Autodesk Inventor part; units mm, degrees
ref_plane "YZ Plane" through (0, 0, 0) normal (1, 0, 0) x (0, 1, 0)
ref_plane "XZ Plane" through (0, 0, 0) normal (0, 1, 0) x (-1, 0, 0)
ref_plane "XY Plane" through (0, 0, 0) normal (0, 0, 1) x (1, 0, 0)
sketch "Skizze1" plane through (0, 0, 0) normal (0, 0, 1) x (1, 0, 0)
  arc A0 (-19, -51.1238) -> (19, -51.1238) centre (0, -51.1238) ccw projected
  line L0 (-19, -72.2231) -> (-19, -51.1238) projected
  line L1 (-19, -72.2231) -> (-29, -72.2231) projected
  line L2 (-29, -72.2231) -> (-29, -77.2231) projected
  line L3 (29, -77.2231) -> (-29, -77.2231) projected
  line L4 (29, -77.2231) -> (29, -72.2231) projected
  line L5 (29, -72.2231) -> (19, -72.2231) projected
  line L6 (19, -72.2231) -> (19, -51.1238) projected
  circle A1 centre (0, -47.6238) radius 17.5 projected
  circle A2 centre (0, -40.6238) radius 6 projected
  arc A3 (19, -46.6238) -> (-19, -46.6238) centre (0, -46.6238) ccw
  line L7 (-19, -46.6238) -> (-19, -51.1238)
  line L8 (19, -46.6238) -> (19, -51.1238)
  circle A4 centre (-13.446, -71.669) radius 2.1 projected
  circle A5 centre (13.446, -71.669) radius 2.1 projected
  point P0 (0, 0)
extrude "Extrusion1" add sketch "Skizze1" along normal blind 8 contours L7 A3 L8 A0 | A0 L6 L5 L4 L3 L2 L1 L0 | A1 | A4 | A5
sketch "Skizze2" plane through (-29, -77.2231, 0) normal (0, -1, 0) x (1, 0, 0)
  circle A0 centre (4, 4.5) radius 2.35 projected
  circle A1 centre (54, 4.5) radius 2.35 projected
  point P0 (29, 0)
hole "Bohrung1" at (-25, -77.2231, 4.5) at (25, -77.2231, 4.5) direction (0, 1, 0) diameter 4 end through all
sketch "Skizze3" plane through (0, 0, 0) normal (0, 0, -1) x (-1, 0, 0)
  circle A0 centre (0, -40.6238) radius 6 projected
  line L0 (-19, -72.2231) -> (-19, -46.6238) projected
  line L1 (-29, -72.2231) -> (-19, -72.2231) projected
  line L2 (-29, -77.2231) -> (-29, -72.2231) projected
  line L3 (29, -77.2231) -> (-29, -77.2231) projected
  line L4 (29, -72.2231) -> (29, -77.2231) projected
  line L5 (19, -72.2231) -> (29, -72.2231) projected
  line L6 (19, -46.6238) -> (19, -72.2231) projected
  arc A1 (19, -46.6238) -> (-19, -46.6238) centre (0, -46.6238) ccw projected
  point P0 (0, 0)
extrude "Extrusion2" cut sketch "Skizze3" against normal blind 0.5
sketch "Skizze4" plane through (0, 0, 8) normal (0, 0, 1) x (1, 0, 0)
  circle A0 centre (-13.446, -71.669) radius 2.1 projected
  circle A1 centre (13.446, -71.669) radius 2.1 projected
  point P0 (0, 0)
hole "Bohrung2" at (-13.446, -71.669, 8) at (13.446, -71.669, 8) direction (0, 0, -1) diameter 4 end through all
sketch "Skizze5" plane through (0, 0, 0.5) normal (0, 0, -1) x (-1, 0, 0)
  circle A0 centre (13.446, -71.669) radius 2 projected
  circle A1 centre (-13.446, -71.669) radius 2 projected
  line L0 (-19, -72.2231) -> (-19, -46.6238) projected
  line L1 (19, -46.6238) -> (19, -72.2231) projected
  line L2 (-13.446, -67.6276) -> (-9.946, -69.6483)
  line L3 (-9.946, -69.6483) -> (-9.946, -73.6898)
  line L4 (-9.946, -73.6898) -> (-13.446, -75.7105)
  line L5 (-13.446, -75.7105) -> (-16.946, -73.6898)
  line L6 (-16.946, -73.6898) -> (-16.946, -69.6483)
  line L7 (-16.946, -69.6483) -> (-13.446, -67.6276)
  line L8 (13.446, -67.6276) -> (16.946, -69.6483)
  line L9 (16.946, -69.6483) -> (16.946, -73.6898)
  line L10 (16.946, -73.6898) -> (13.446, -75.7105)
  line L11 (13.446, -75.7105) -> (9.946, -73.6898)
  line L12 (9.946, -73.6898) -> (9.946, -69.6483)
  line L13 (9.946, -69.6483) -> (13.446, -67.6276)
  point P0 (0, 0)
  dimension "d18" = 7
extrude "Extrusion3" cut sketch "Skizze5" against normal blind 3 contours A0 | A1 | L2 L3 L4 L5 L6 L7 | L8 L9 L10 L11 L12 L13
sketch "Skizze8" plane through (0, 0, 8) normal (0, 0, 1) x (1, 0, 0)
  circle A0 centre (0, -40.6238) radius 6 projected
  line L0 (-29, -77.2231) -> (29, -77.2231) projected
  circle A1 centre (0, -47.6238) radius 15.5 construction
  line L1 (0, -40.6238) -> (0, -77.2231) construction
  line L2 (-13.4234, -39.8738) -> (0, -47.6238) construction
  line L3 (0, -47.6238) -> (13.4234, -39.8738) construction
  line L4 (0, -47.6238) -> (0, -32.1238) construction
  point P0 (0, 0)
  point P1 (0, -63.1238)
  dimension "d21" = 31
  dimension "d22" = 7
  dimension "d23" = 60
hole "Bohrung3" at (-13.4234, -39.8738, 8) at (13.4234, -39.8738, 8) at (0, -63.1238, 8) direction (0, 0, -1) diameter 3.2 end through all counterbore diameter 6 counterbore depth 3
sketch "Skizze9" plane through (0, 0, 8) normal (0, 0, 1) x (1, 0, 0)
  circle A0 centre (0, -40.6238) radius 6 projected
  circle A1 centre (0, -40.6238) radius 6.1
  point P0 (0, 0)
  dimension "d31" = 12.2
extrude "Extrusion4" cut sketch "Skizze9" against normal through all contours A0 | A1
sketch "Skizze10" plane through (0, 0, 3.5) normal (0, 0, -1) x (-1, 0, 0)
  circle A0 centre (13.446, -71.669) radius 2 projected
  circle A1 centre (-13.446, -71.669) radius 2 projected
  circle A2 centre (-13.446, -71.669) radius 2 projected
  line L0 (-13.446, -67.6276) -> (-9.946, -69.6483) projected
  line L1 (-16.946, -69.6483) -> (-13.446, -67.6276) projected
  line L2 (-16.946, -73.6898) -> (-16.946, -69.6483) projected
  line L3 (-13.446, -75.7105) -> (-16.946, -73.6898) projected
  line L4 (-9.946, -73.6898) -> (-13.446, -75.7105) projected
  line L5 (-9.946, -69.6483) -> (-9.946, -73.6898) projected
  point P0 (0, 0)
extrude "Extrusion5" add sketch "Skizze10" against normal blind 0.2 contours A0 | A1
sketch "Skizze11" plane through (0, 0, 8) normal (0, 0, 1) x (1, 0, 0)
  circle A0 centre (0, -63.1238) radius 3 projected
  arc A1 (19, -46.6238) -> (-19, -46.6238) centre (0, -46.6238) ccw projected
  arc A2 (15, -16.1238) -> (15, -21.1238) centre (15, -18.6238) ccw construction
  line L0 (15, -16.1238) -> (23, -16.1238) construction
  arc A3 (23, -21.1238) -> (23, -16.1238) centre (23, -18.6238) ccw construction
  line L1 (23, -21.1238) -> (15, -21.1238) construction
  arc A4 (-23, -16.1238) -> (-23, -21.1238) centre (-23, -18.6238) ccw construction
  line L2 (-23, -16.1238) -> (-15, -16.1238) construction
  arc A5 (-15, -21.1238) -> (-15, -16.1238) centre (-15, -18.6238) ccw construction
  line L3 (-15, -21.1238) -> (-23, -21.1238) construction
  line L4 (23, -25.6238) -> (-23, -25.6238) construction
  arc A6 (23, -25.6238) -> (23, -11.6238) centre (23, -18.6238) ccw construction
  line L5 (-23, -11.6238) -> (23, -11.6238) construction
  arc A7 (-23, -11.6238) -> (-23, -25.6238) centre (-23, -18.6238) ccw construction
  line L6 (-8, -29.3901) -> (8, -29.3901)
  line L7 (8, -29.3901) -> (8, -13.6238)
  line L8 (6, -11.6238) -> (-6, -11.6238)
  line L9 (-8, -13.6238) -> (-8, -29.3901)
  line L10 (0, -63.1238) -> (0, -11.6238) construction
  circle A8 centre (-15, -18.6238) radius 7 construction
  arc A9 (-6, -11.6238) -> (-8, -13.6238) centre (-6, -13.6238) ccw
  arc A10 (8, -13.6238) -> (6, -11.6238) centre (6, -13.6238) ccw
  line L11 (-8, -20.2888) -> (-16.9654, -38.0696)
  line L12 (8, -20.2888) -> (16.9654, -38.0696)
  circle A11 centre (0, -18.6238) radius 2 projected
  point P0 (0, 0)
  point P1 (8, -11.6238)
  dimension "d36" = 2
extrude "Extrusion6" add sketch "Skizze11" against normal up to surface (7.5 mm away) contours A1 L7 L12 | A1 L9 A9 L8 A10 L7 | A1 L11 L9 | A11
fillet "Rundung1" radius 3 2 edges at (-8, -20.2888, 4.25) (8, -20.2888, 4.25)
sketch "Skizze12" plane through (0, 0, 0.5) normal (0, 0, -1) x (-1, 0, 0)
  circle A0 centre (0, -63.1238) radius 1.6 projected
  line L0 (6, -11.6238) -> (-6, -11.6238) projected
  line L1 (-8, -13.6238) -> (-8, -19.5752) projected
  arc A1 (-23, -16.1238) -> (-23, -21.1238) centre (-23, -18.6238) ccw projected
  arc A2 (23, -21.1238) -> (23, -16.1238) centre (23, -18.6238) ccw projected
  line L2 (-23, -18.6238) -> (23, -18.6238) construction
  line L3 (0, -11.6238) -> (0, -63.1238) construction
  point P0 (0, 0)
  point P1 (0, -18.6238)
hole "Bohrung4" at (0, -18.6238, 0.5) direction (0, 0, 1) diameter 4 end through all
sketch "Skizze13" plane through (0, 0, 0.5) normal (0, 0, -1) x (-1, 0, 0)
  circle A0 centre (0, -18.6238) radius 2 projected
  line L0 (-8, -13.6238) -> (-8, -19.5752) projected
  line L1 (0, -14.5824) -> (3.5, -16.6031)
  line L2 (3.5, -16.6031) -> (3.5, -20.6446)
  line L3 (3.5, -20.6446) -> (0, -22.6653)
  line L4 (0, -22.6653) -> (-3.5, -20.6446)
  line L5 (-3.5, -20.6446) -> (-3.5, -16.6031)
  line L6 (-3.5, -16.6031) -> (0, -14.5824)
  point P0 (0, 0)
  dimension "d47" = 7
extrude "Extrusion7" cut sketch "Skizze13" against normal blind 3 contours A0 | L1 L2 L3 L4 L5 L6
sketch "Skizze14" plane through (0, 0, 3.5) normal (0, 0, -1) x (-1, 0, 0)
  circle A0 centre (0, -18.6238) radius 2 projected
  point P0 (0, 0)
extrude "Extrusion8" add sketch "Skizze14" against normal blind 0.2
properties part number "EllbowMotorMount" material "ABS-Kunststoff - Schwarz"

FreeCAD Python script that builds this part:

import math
import FreeCAD as App
import Part
import Sketcher

V = App.Vector
Q = App.Units.Quantity


def edges_at(feature, points):
    """Names of the edges that pass closest to the given points."""
    edges = feature.Shape.Edges
    near = lambda p: min(range(len(edges)), key=lambda i: edges[i].distToShape(Part.Vertex(*p))[0])
    return sorted({f"Edge{near(p) + 1}" for p in points})


def add_polygon(sketch, points):
    """Adds a closed chain of lines whose ends are joined by coincident constraints."""
    first, n = sketch.GeometryCount, len(points)
    for a, b in zip(points, points[1:] + points[:1]):
        sketch.addGeometry(Part.LineSegment(App.Vector(*a, 0), App.Vector(*b, 0)), False)
    for i in range(n):
        sketch.addConstraint(Sketcher.Constraint("Coincident", first + i, 2, first + (i + 1) % n, 1))

doc = App.newDocument("Part")
params = doc.addObject("Spreadsheet::Sheet", "Params")
for row, (alias, value) in enumerate([
    ("sketch1_diameter", "12 mm"),
    ("sketch1_radius", "19 mm"),
    ("sketch1_width", "10 mm"),
    ("sketch1_height", "5 mm"),
    ("pad1_length", "8 mm"),
    ("sketch2_diameter", "4 mm"),
    ("hole_diameter", "4 mm"),
    ("sketch3_diameter", "12 mm"),
    ("sketch3_radius", "19 mm"),
    ("sketch3_width", "10 mm"),
    ("sketch3_height", "5 mm"),
    ("pocket1_length", "0.5 mm"),
    ("sketch4_diameter", "4 mm"),
    ("hole2_diameter", "4 mm"),
    ("pocket2_length", "3 mm"),
    ("sketch6_diameter", "3.2 mm"),
    ("hole3_diameter", "3.2 mm"),
    ("hole3_cbore_diameter", "6 mm"),
    ("hole3_cbore_depth", "3 mm"),
    ("sketch7_diameter", "12.2 mm"),
    ("sketch8_diameter", "4 mm"),
    ("pad2_length", "0.2 mm"),
    ("sketch9_radius", "2 mm"),
    ("sketch9_radius2", "19 mm"),
    ("sketch9_width", "12 mm"),
    ("pad3_length", "7.5 mm"),
    ("fillet_radius", "3 mm"),
    ("sketch10_diameter", "4 mm"),
    ("hole4_diameter", "4 mm"),
    ("pocket4_length", "3 mm"),
    ("sketch12_diameter", "4 mm"),
    ("pad4_length", "0.2 mm"),
], start=1):
    params.set(f"A{row}", alias)
    params.set(f"B{row}", "=" + value)
    params.setAlias(f"B{row}", alias)

body = doc.addObject("PartDesign::Body", "Body")

sketch1 = body.newObject("Sketcher::SketchObject", "Sketch")
sketch1.AttachmentSupport = (doc.getObject("XY_Plane"), [""])
sketch1.MapMode = "FlatFace"
sketch1.addGeometry([
    Part.LineSegment(V(-19, -47, 0), V(-19, -72, 0)),
    Part.LineSegment(V(-19, -72, 0), V(-29, -72, 0)),
    Part.LineSegment(V(-29, -72, 0), V(-29, -77, 0)),
    Part.LineSegment(V(-29, -77, 0), V(29, -77, 0)),
    Part.LineSegment(V(29, -77, 0), V(29, -72, 0)),
    Part.LineSegment(V(29, -72, 0), V(19, -72, 0)),
    Part.LineSegment(V(19, -72, 0), V(19, -47, 0)),
    Part.ArcOfCircle(Part.Circle(V(0, -47, 0), V(0, 0, 1), 19), math.radians(0), math.radians(180)),
    Part.Circle(V(0, -41, 0), V(0, 0, 1), 6),
], False)
sketch1.addConstraint([
    Sketcher.Constraint("Coincident", 0, 2, 1, 1),
    Sketcher.Constraint("Coincident", 1, 2, 2, 1),
    Sketcher.Constraint("Coincident", 2, 2, 3, 1),
    Sketcher.Constraint("Coincident", 3, 2, 4, 1),
    Sketcher.Constraint("Coincident", 4, 2, 5, 1),
    Sketcher.Constraint("Coincident", 5, 2, 6, 1),
    Sketcher.Constraint("Tangent", 6, 2, 7, 1),
    Sketcher.Constraint("Tangent", 7, 2, 0, 1),
    Sketcher.Constraint("Vertical", 0),
    Sketcher.Constraint("Horizontal", 1),
    Sketcher.Constraint("Vertical", 2),
    Sketcher.Constraint("Horizontal", 3),
    Sketcher.Constraint("Vertical", 4),
    Sketcher.Constraint("Horizontal", 5),
    Sketcher.Constraint("Vertical", 6),
    Sketcher.Constraint("Symmetric", 1, 2, 4, 2, -2),
    Sketcher.Constraint("PointOnObject", 7, 3, -2),
    Sketcher.Constraint("PointOnObject", 8, 3, -2),
    Sketcher.Constraint("Diameter", 8, 12.0),
    Sketcher.Constraint("Radius", 7, 19.0),
    Sketcher.Constraint("DistanceX", 1, 2, 1, 1, 10.0),
    Sketcher.Constraint("DistanceY", 2, 2, 2, 1, 5.0),
    Sketcher.Constraint("DistanceY", 7, 3, 8, 3, 6.0),
    Sketcher.Constraint("DistanceY", 0, 2, 0, 1, 25.5993),
    Sketcher.Constraint("DistanceY", 0, 2, -1, 1, 72.223),
])
sketch1.setExpression("Constraints[18]", "Params.sketch1_diameter")
sketch1.setExpression("Constraints[19]", "Params.sketch1_radius")
sketch1.setExpression("Constraints[20]", "Params.sketch1_width")
sketch1.setExpression("Constraints[21]", "Params.sketch1_height")
pad1 = body.newObject("PartDesign::Pad", "Pad")
pad1.Profile = sketch1
pad1.setExpression("Length", "Params.pad1_length")

sketch2 = body.newObject("Sketcher::SketchObject", "Sketch001")
sketch2.AttachmentSupport = (doc.getObject("XZ_Plane"), [""])
sketch2.MapMode = "FlatFace"
sketch2.AttachmentOffset = App.Placement(V(0, 0, 77.2231), App.Rotation())
sketch2.addGeometry([
    Part.Circle(V(-25, 4.5, 0), V(0, 0, 1), 2),
    Part.Circle(V(25, 4.5, 0), V(0, 0, 1), 2),
], False)
sketch2.addConstraint([
    Sketcher.Constraint("Equal", 0, 1),
    Sketcher.Constraint("Symmetric", 0, 3, 1, 3, -2),
    Sketcher.Constraint("Diameter", 0, 4.0),
    Sketcher.Constraint("DistanceX", 0, 3, -1, 1, 25.0),
    Sketcher.Constraint("DistanceY", -1, 1, 0, 3, 4.5),
])
sketch2.setExpression("Constraints[2]", "Params.sketch2_diameter")
doc.recompute()
hole = body.newObject("PartDesign::Hole", "Hole")
hole.Profile = sketch2
hole.ThreadType = "None"
hole.setExpression("Diameter", "Params.hole_diameter")
hole.DepthType = "ThroughAll"

sketch3 = body.newObject("Sketcher::SketchObject", "Sketch002")
sketch3.AttachmentSupport = (doc.getObject("XY_Plane"), [""])
sketch3.MapMode = "FlatFace"
sketch3.addGeometry([
    Part.LineSegment(V(19, -47, 0), V(19, -72, 0)),
    Part.LineSegment(V(19, -72, 0), V(29, -72, 0)),
    Part.LineSegment(V(29, -72, 0), V(29, -77, 0)),
    Part.LineSegment(V(29, -77, 0), V(-29, -77, 0)),
    Part.LineSegment(V(-29, -77, 0), V(-29, -72, 0)),
    Part.LineSegment(V(-29, -72, 0), V(-19, -72, 0)),
    Part.LineSegment(V(-19, -72, 0), V(-19, -47, 0)),
    Part.ArcOfCircle(Part.Circle(V(0, -47, 0), V(0, 0, 1), 19), math.radians(0), math.radians(180)),
    Part.Circle(V(0, -41, 0), V(0, 0, 1), 6),
], False)
sketch3.addConstraint([
    Sketcher.Constraint("Coincident", 0, 2, 1, 1),
    Sketcher.Constraint("Coincident", 1, 2, 2, 1),
    Sketcher.Constraint("Coincident", 2, 2, 3, 1),
    Sketcher.Constraint("Coincident", 3, 2, 4, 1),
    Sketcher.Constraint("Coincident", 4, 2, 5, 1),
    Sketcher.Constraint("Coincident", 5, 2, 6, 1),
    Sketcher.Constraint("Tangent", 6, 2, 7, 2),
    Sketcher.Constraint("Tangent", 7, 1, 0, 1),
    Sketcher.Constraint("Vertical", 0),
    Sketcher.Constraint("Horizontal", 1),
    Sketcher.Constraint("Vertical", 2),
    Sketcher.Constraint("Horizontal", 3),
    Sketcher.Constraint("Vertical", 4),
    Sketcher.Constraint("Horizontal", 5),
    Sketcher.Constraint("Vertical", 6),
    Sketcher.Constraint("Symmetric", 1, 2, 4, 2, -2),
    Sketcher.Constraint("PointOnObject", 7, 3, -2),
    Sketcher.Constraint("PointOnObject", 8, 3, -2),
    Sketcher.Constraint("Diameter", 8, 12.0),
    Sketcher.Constraint("Radius", 7, 19.0),
    Sketcher.Constraint("DistanceX", 1, 1, 1, 2, 10.0),
    Sketcher.Constraint("DistanceY", 2, 2, 2, 1, 5.0),
    Sketcher.Constraint("DistanceY", 7, 3, 8, 3, 6.0),
    Sketcher.Constraint("DistanceY", 0, 2, 0, 1, 25.5993),
    Sketcher.Constraint("DistanceY", 0, 2, -1, 1, 72.223),
])
sketch3.setExpression("Constraints[18]", "Params.sketch3_diameter")
sketch3.setExpression("Constraints[19]", "Params.sketch3_radius")
sketch3.setExpression("Constraints[20]", "Params.sketch3_width")
sketch3.setExpression("Constraints[21]", "Params.sketch3_height")
pocket1 = body.newObject("PartDesign::Pocket", "Pocket")
pocket1.Profile = sketch3
pocket1.setExpression("Length", "Params.pocket1_length")
pocket1.Reversed = True

sketch4 = body.newObject("Sketcher::SketchObject", "Sketch003")
sketch4.AttachmentSupport = (doc.getObject("XY_Plane"), [""])
sketch4.MapMode = "FlatFace"
sketch4.AttachmentOffset = App.Placement(V(0, 0, 8), App.Rotation())
sketch4.addGeometry([
    Part.Circle(V(-13.4, -71.7, 0), V(0, 0, 1), 2),
    Part.Circle(V(13.4, -71.7, 0), V(0, 0, 1), 2),
], False)
sketch4.addConstraint([
    Sketcher.Constraint("Equal", 0, 1),
    Sketcher.Constraint("Symmetric", 0, 3, 1, 3, -2),
    Sketcher.Constraint("Diameter", 0, 4.0),
    Sketcher.Constraint("DistanceX", 0, 3, -1, 1, 13.446),
    Sketcher.Constraint("DistanceY", 0, 3, -1, 1, 71.669),
])
sketch4.setExpression("Constraints[2]", "Params.sketch4_diameter")
doc.recompute()
hole2 = body.newObject("PartDesign::Hole", "Hole001")
hole2.Profile = sketch4
hole2.ThreadType = "None"
hole2.setExpression("Diameter", "Params.hole2_diameter")
hole2.DepthType = "ThroughAll"

sketch5 = body.newObject("Sketcher::SketchObject", "Sketch004")
sketch5.AttachmentSupport = (doc.getObject("XY_Plane"), [""])
sketch5.MapMode = "FlatFace"
sketch5.AttachmentOffset = App.Placement(V(0, 0, 0.5), App.Rotation())
add_polygon(sketch5, [(-16.9, -69.6), (-13.4, -67.6), (-9.9, -69.6), (-9.9, -73.7), (-13.4, -75.7), (-16.9, -73.7)])
add_polygon(sketch5, [(9.9, -69.6), (13.4, -67.6), (16.9, -69.6), (16.9, -73.7), (13.4, -75.7), (9.9, -73.7)])
sketch5.addConstraint([
    Sketcher.Constraint("Vertical", 2),
    Sketcher.Constraint("Vertical", 5),
    Sketcher.Constraint("Vertical", 8),
    Sketcher.Constraint("Vertical", 11),
    Sketcher.Constraint("Symmetric", 0, 2, 6, 2, -2),
    Sketcher.Constraint("Symmetric", 5, 2, 7, 2, -2),
    Sketcher.Constraint("Symmetric", 3, 2, 9, 2, -2),
    Sketcher.Constraint("Symmetric", 2, 2, 10, 2, -2),
    Sketcher.Constraint("Parallel", 0, 3),
    Sketcher.Constraint("Parallel", 1, 4),
    Sketcher.Constraint("Parallel", 3, 6),
    Sketcher.Constraint("Parallel", 4, 7),
    Sketcher.Constraint("Parallel", 6, 9),
    Sketcher.Constraint("Horizontal", 2, 2, 4, 2),
    Sketcher.Constraint("Horizontal", 1, 2, 5, 2),
    Sketcher.Constraint("DistanceX", 4, 2, 2, 2, 7.0),
    Sketcher.Constraint("Angle", 0, Q("29.9997 deg")),
    Sketcher.Constraint("DistanceY", 2, 2, 2, 1, 4.0415),
    Sketcher.Constraint("DistanceX", 0, 2, -1, 1, 13.446),
    Sketcher.Constraint("DistanceY", 0, 2, -1, 1, 67.6276),
])
pocket2 = body.newObject("PartDesign::Pocket", "Pocket001")
pocket2.Profile = sketch5
pocket2.setExpression("Length", "Params.pocket2_length")
pocket2.Reversed = True

sketch6 = body.newObject("Sketcher::SketchObject", "Sketch005")
sketch6.AttachmentSupport = (doc.getObject("XY_Plane"), [""])
sketch6.MapMode = "FlatFace"
sketch6.AttachmentOffset = App.Placement(V(0, 0, 8), App.Rotation())
sketch6.addGeometry([
    Part.Circle(V(-13.4, -39.9, 0), V(0, 0, 1), 1.6),
    Part.Circle(V(13.4, -39.9, 0), V(0, 0, 1), 1.6),
    Part.Circle(V(0, -63.1, 0), V(0, 0, 1), 1.6),
], False)
sketch6.addConstraint([
    Sketcher.Constraint("Equal", 0, 1),
    Sketcher.Constraint("Equal", 1, 2),
    Sketcher.Constraint("Symmetric", 0, 3, 1, 3, -2),
    Sketcher.Constraint("PointOnObject", 2, 3, -2),
    Sketcher.Constraint("Diameter", 0, 3.2),
    Sketcher.Constraint("DistanceY", 2, 3, 0, 3, 23.25),
    Sketcher.Constraint("DistanceX", 0, 3, -1, 1, 13.4234),
    Sketcher.Constraint("DistanceY", 0, 3, -1, 1, 39.8738),
])
sketch6.setExpression("Constraints[4]", "Params.sketch6_diameter")
doc.recompute()
hole3 = body.newObject("PartDesign::Hole", "Hole002")
hole3.Profile = sketch6
hole3.ThreadType = "None"
hole3.setExpression("Diameter", "Params.hole3_diameter")
hole3.DepthType = "ThroughAll"
hole3.HoleCutType = "Counterbore"
hole3.setExpression("HoleCutDiameter", "Params.hole3_cbore_diameter")
hole3.setExpression("HoleCutDepth", "Params.hole3_cbore_depth")

sketch7 = body.newObject("Sketcher::SketchObject", "Sketch006")
sketch7.AttachmentSupport = (doc.getObject("XY_Plane"), [""])
sketch7.MapMode = "FlatFace"
sketch7.AttachmentOffset = App.Placement(V(0, 0, 8), App.Rotation())
sketch7.addGeometry(Part.Circle(V(0, -41, 0), V(0, 0, 1), 6), False)
sketch7.addConstraint([
    Sketcher.Constraint("PointOnObject", 0, 3, -2),
    Sketcher.Constraint("Diameter", 0, 12.2),
    Sketcher.Constraint("DistanceY", 0, 3, -1, 1, 40.6238),
])
sketch7.setExpression("Constraints[1]", "Params.sketch7_diameter")
pocket3 = body.newObject("PartDesign::Pocket", "Pocket002")
pocket3.Profile = sketch7
pocket3.Type = "ThroughAll"

sketch8 = body.newObject("Sketcher::SketchObject", "Sketch007")
sketch8.AttachmentSupport = (doc.getObject("XY_Plane"), [""])
sketch8.MapMode = "FlatFace"
sketch8.AttachmentOffset = App.Placement(V(0, 0, 3.5), App.Rotation())
sketch8.addGeometry([
    Part.Circle(V(-13.4, -71.7, 0), V(0, 0, 1), 2),
    Part.Circle(V(13.4, -71.7, 0), V(0, 0, 1), 2),
], False)
sketch8.addConstraint([
    Sketcher.Constraint("Equal", 0, 1),
    Sketcher.Constraint("Symmetric", 0, 3, 1, 3, -2),
    Sketcher.Constraint("Diameter", 0, 4.0),
    Sketcher.Constraint("DistanceX", 0, 3, -1, 1, 13.446),
    Sketcher.Constraint("DistanceY", 0, 3, -1, 1, 71.669),
])
sketch8.setExpression("Constraints[2]", "Params.sketch8_diameter")
pad2 = body.newObject("PartDesign::Pad", "Pad001")
pad2.Profile = sketch8
pad2.setExpression("Length", "Params.pad2_length")

sketch9 = body.newObject("Sketcher::SketchObject", "Sketch008")
sketch9.AttachmentSupport = (doc.getObject("XY_Plane"), [""])
sketch9.MapMode = "FlatFace"
sketch9.AttachmentOffset = App.Placement(V(0, 0, 8), App.Rotation())
sketch9.addGeometry([
    Part.LineSegment(V(17, -38.1, 0), V(8, -20.3, 0)),
    Part.LineSegment(V(8, -20.3, 0), V(8, -13.6, 0)),
    Part.ArcOfCircle(Part.Circle(V(6, -13.6, 0), V(0, 0, 1), 2), math.radians(0), math.radians(90)),
    Part.LineSegment(V(6, -11.6, 0), V(-6, -11.6, 0)),
    Part.ArcOfCircle(Part.Circle(V(-6, -13.6, 0), V(0, 0, 1), 2), math.radians(90), math.radians(180)),
    Part.LineSegment(V(-8, -13.6, 0), V(-8, -20.3, 0)),
    Part.LineSegment(V(-8, -20.3, 0), V(-17, -38.1, 0)),
    Part.ArcOfCircle(Part.Circle(V(0, -46.6, 0), V(0, 0, 1), 19), math.radians(27), math.radians(153)),
], False)
sketch9.addConstraint([
    Sketcher.Constraint("Coincident", 0, 2, 1, 1),
    Sketcher.Constraint("Tangent", 1, 2, 2, 1),
    Sketcher.Constraint("Tangent", 2, 2, 3, 1),
    Sketcher.Constraint("Tangent", 3, 2, 4, 1),
    Sketcher.Constraint("Tangent", 4, 2, 5, 1),
    Sketcher.Constraint("Coincident", 5, 2, 6, 1),
    Sketcher.Constraint("Tangent", 6, 2, 7, 2),
    Sketcher.Constraint("Tangent", 7, 1, 0, 1),
    Sketcher.Constraint("Vertical", 1),
    Sketcher.Constraint("Horizontal", 3),
    Sketcher.Constraint("Vertical", 5),
    Sketcher.Constraint("Equal", 2, 4),
    Sketcher.Constraint("Symmetric", 0, 2, 5, 2, -2),
    Sketcher.Constraint("PointOnObject", 7, 3, -2),
    Sketcher.Constraint("Radius", 2, 2.0),
    Sketcher.Constraint("Radius", 7, 19.0),
    Sketcher.Constraint("DistanceX", 3, 2, 3, 1, 12.0),
    Sketcher.Constraint("DistanceY", 7, 3, 2, 3, 33.0),
    Sketcher.Constraint("DistanceY", 1, 1, 1, 2, 6.665),
    Sketcher.Constraint("DistanceY", 2, 3, -1, 1, 13.6238),
])
sketch9.setExpression("Constraints[14]", "Params.sketch9_radius")
sketch9.setExpression("Constraints[15]", "Params.sketch9_radius2")
sketch9.setExpression("Constraints[16]", "Params.sketch9_width")
pad3 = body.newObject("PartDesign::Pad", "Pad002")
pad3.Profile = sketch9
pad3.setExpression("Length", "Params.pad3_length")
pad3.Reversed = True
doc.recompute()

fillet = body.newObject("PartDesign::Fillet", "Fillet")
fillet.Base = (pad3, edges_at(pad3, [(-8, -20.289, 4.25), (8, -20.289, 4.25)]))
fillet.setExpression("Radius", "Params.fillet_radius")

sketch10 = body.newObject("Sketcher::SketchObject", "Sketch009")
sketch10.AttachmentSupport = (doc.getObject("XY_Plane"), [""])
sketch10.MapMode = "FlatFace"
sketch10.AttachmentOffset = App.Placement(V(0, 0, 0.5), App.Rotation())
sketch10.addGeometry(Part.Circle(V(0, -18.6, 0), V(0, 0, 1), 2), False)
sketch10.addConstraint([
    Sketcher.Constraint("PointOnObject", 0, 3, -2),
    Sketcher.Constraint("Diameter", 0, 4.0),
    Sketcher.Constraint("DistanceY", 0, 3, -1, 1, 18.6238),
])
sketch10.setExpression("Constraints[1]", "Params.sketch10_diameter")
doc.recompute()
hole4 = body.newObject("PartDesign::Hole", "Hole003")
hole4.Profile = sketch10
hole4.ThreadType = "None"
hole4.setExpression("Diameter", "Params.hole4_diameter")
hole4.DepthType = "ThroughAll"
hole4.Reversed = True

sketch11 = body.newObject("Sketcher::SketchObject", "Sketch010")
sketch11.AttachmentSupport = (doc.getObject("XY_Plane"), [""])
sketch11.MapMode = "FlatFace"
sketch11.AttachmentOffset = App.Placement(V(0, 0, 0.5), App.Rotation())
add_polygon(sketch11, [(-3.5, -16.6), (0, -14.6), (3.5, -16.6), (3.5, -20.6), (0, -22.7), (-3.5, -20.6)])
sketch11.addConstraint([
    Sketcher.Constraint("Vertical", 2),
    Sketcher.Constraint("Vertical", 5),
    Sketcher.Constraint("Symmetric", 2, 2, 4, 2, -2),
    Sketcher.Constraint("PointOnObject", 0, 2, -2),
    Sketcher.Constraint("PointOnObject", 3, 2, -2),
    Sketcher.Constraint("Parallel", 0, 3),
    Sketcher.Constraint("Parallel", 1, 4),
    Sketcher.Constraint("DistanceX", 4, 2, 2, 2, 7.0),
    Sketcher.Constraint("Angle", 0, Q("29.9997 deg")),
    Sketcher.Constraint("DistanceY", 2, 2, 2, 1, 4.0415),
    Sketcher.Constraint("DistanceY", 1, 2, -1, 1, 16.603),
])
pocket4 = body.newObject("PartDesign::Pocket", "Pocket003")
pocket4.Profile = sketch11
pocket4.setExpression("Length", "Params.pocket4_length")
pocket4.Reversed = True

sketch12 = body.newObject("Sketcher::SketchObject", "Sketch011")
sketch12.AttachmentSupport = (doc.getObject("XY_Plane"), [""])
sketch12.MapMode = "FlatFace"
sketch12.AttachmentOffset = App.Placement(V(0, 0, 3.5), App.Rotation())
sketch12.addGeometry(Part.Circle(V(0, -18.6, 0), V(0, 0, 1), 2), False)
sketch12.addConstraint([
    Sketcher.Constraint("PointOnObject", 0, 3, -2),
    Sketcher.Constraint("Diameter", 0, 4.0),
    Sketcher.Constraint("DistanceY", 0, 3, -1, 1, 18.6238),
])
sketch12.setExpression("Constraints[1]", "Params.sketch12_diameter")
pad4 = body.newObject("PartDesign::Pad", "Pad003")
pad4.Profile = sketch12
pad4.setExpression("Length", "Params.pad4_length")

doc.recompute()
